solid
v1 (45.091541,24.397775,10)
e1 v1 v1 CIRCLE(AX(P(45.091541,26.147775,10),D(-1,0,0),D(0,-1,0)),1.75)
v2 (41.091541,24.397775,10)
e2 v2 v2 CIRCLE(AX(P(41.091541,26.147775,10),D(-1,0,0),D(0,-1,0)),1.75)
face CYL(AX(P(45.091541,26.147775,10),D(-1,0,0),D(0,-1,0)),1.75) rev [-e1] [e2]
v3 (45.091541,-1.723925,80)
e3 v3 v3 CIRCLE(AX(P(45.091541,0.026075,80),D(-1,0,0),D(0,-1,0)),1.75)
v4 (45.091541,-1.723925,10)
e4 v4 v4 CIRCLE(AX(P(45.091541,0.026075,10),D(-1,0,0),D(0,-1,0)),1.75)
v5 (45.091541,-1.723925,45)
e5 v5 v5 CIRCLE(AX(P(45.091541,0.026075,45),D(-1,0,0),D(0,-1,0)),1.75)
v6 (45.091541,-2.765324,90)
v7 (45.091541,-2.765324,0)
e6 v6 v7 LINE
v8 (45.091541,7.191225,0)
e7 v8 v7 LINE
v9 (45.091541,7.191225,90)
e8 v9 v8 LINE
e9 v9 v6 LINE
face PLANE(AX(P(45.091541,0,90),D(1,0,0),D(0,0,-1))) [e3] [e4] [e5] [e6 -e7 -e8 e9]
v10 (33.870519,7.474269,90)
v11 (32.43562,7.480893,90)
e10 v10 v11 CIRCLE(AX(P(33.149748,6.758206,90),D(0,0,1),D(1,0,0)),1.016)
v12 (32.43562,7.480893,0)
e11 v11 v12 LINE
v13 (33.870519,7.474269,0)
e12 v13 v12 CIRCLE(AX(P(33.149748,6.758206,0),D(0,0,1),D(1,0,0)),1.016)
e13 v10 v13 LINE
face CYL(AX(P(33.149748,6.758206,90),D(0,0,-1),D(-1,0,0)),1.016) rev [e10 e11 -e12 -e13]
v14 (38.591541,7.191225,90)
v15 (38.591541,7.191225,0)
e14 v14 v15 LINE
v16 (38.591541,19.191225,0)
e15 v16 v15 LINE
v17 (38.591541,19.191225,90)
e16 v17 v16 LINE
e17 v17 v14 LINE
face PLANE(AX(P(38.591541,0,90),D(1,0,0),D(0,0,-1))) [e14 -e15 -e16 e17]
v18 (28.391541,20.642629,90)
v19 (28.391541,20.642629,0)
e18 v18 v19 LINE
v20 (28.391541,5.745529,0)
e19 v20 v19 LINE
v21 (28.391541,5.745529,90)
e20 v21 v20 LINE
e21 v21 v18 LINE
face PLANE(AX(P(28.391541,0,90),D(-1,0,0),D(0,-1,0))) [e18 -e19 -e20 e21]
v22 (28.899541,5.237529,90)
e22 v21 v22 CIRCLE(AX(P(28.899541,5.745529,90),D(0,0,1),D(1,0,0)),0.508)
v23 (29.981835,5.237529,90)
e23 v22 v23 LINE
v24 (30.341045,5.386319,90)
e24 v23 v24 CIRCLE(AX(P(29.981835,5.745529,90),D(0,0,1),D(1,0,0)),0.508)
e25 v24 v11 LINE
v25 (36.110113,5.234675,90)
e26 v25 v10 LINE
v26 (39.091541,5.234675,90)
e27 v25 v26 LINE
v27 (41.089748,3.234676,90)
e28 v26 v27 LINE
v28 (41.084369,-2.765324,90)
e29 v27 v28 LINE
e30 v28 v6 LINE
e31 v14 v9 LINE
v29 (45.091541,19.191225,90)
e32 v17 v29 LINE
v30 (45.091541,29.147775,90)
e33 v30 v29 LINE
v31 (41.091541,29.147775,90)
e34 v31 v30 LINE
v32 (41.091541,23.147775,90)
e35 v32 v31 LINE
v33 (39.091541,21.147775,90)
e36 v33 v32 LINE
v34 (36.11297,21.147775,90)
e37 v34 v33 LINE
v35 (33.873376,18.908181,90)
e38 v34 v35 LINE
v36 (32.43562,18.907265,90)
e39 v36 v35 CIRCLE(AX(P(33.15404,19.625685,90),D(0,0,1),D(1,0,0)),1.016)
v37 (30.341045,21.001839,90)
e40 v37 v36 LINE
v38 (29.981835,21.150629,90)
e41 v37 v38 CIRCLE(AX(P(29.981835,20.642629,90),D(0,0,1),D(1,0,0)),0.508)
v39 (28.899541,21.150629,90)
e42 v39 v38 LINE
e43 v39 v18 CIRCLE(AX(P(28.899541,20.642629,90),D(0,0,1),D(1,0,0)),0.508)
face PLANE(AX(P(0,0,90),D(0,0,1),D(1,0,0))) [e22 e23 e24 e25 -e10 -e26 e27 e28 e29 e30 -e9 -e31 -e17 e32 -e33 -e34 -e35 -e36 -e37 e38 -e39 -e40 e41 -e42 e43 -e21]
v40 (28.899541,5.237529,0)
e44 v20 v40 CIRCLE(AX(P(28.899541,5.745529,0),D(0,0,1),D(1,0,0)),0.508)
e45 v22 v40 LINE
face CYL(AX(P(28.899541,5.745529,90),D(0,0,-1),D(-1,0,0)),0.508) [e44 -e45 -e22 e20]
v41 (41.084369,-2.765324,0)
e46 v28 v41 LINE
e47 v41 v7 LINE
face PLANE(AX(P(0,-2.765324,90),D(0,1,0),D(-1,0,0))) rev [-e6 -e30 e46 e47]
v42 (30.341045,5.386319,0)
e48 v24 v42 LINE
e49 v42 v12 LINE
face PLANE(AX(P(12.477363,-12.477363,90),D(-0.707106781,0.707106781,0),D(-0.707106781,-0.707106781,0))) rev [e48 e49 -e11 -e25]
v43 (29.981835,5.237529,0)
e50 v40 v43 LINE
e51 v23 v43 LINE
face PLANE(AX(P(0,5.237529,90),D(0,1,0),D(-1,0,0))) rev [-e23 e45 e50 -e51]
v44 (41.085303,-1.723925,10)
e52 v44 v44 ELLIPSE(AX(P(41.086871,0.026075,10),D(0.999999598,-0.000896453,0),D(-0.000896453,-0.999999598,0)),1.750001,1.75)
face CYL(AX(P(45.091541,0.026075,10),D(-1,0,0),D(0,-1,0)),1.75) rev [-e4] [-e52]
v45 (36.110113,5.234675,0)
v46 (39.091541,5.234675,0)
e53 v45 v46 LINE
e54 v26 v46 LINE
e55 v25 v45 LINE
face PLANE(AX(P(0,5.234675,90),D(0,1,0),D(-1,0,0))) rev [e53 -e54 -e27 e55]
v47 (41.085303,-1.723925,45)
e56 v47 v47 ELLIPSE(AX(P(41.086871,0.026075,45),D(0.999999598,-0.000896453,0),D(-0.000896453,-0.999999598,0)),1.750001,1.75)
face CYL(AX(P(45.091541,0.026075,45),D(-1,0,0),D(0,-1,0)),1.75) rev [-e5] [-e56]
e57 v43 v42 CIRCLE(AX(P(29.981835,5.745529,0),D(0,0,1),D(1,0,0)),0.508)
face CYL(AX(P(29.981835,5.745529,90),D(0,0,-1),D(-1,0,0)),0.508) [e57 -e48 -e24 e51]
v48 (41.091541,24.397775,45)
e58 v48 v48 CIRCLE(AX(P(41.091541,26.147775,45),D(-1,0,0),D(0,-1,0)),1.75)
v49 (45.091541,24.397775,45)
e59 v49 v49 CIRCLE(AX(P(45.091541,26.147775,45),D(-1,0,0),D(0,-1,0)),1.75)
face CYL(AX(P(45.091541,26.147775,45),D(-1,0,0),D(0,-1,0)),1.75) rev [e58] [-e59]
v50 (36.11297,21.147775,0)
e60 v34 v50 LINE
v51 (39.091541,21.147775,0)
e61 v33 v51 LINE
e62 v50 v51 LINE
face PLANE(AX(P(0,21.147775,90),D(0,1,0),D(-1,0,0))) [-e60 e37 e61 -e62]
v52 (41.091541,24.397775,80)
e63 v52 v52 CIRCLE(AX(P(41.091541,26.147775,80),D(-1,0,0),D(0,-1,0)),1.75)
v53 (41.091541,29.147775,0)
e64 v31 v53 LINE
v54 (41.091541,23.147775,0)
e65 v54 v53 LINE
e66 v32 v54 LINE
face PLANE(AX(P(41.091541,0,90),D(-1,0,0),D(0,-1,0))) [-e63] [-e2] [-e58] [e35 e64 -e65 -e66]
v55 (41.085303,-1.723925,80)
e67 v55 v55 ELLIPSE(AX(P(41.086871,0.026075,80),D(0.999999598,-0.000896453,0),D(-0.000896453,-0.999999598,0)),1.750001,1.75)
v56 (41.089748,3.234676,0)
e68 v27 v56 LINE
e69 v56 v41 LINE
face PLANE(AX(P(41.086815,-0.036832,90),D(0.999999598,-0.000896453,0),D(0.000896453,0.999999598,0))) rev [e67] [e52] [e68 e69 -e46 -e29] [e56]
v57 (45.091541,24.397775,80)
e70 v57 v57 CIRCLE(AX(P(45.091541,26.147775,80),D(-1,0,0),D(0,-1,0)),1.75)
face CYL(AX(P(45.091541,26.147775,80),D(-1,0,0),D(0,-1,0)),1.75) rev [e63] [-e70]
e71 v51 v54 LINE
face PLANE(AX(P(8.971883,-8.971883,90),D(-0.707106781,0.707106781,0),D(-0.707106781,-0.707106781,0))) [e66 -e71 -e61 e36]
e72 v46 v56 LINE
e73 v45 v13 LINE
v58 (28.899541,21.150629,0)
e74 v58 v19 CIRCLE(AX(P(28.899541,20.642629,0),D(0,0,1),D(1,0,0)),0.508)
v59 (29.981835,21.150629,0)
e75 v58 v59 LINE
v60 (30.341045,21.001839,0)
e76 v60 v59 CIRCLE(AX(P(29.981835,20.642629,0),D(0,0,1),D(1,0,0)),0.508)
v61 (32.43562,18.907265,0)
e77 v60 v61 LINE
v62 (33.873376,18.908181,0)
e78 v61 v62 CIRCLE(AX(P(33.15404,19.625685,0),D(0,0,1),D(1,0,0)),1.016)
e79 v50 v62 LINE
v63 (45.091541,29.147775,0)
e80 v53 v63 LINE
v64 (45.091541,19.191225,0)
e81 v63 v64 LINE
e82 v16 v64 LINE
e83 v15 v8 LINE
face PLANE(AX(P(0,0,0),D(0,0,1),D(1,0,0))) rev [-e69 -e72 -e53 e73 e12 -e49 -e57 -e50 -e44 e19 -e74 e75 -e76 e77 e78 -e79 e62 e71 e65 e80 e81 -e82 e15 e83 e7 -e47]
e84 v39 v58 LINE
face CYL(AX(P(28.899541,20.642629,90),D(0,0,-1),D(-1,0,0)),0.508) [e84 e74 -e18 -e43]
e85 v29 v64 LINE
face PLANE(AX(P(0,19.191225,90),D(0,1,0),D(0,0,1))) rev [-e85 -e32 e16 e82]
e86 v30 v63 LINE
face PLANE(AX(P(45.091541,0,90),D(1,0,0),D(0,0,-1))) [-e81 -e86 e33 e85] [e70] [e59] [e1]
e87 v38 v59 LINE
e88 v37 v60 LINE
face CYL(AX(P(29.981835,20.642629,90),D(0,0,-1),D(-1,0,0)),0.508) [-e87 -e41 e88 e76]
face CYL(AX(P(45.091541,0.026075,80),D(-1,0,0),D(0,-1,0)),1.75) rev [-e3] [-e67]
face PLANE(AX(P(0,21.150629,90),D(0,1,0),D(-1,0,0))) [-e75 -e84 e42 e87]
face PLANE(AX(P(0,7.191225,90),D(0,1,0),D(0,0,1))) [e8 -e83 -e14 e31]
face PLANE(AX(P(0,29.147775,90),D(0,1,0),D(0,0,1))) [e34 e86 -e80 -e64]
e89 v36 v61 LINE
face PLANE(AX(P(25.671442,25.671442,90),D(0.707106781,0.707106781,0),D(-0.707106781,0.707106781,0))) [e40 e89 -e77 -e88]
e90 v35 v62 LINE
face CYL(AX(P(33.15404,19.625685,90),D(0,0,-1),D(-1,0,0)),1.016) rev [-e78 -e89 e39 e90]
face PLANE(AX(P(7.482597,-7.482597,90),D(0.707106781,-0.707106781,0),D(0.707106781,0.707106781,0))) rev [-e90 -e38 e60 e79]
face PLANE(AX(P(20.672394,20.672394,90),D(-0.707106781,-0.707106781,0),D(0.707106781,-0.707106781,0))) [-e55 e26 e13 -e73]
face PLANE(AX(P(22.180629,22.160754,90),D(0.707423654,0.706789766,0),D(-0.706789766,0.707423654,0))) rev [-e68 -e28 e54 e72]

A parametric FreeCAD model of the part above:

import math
import FreeCAD as App
import Part
import Sketcher

V = App.Vector
Q = App.Units.Quantity

doc = App.newDocument("Part")
body = doc.addObject("PartDesign::Body", "Body")

sketch1 = doc.addObject("Sketcher::SketchObject", "Sketch")
body.addObject(sketch1)
sketch1.AttachmentSupport = (doc.XY_Plane, [""])
sketch1.MapMode = "FlatFace"
sketch1.addGeometry([
    Part.ArcOfCircle(Part.Circle(V(28.9, 5.75, 0), V(0, 0, 1), 0.51), math.radians(180), math.radians(270)),
    Part.LineSegment(V(28.9, 5.24, 0), V(29.98, 5.24, 0)),
    Part.ArcOfCircle(Part.Circle(V(29.98, 5.75, 0), V(0, 0, 1), 0.51), math.radians(-90), math.radians(-45)),
    Part.LineSegment(V(30.34, 5.39, 0), V(32.44, 7.48, 0)),
    Part.ArcOfCircle(Part.Circle(V(33.15, 6.76, 0), V(0, 0, 1), 1.02), math.radians(45), math.radians(135)),
    Part.LineSegment(V(33.87, 7.47, 0), V(36.11, 5.23, 0)),
    Part.LineSegment(V(36.11, 5.23, 0), V(39.09, 5.23, 0)),
    Part.LineSegment(V(39.09, 5.23, 0), V(41.09, 3.23, 0)),
    Part.LineSegment(V(41.09, 3.23, 0), V(41.08, -2.77, 0)),
    Part.LineSegment(V(41.08, -2.77, 0), V(45.09, -2.77, 0)),
    Part.LineSegment(V(45.09, -2.77, 0), V(45.09, 7.19, 0)),
    Part.LineSegment(V(45.09, 7.19, 0), V(38.59, 7.19, 0)),
    Part.LineSegment(V(38.59, 7.19, 0), V(38.59, 19.19, 0)),
    Part.LineSegment(V(38.59, 19.19, 0), V(45.09, 19.19, 0)),
    Part.LineSegment(V(45.09, 19.19, 0), V(45.09, 29.15, 0)),
    Part.LineSegment(V(45.09, 29.15, 0), V(41.09, 29.15, 0)),
    Part.LineSegment(V(41.09, 29.15, 0), V(41.09, 23.15, 0)),
    Part.LineSegment(V(41.09, 23.15, 0), V(39.09, 21.15, 0)),
    Part.LineSegment(V(39.09, 21.15, 0), V(36.11, 21.15, 0)),
    Part.LineSegment(V(36.11, 21.15, 0), V(33.87, 18.91, 0)),
    Part.ArcOfCircle(Part.Circle(V(33.15, 19.63, 0), V(0, 0, 1), 1.02), math.radians(-135), math.radians(-45)),
    Part.LineSegment(V(32.44, 18.91, 0), V(30.34, 21, 0)),
    Part.ArcOfCircle(Part.Circle(V(29.98, 20.64, 0), V(0, 0, 1), 0.51), math.radians(45), math.radians(90)),
    Part.LineSegment(V(29.98, 21.15, 0), V(28.9, 21.15, 0)),
    Part.ArcOfCircle(Part.Circle(V(28.9, 20.64, 0), V(0, 0, 1), 0.51), math.radians(90), math.radians(180)),
    Part.LineSegment(V(28.39, 20.64, 0), V(28.39, 5.75, 0)),
], False)
sketch1.addConstraint([
    Sketcher.Constraint("Tangent", 0, 2, 1, 1),
    Sketcher.Constraint("Tangent", 1, 2, 2, 1),
    Sketcher.Constraint("Tangent", 2, 2, 3, 1),
    Sketcher.Constraint("Coincident", 3, 2, 4, 2),
    Sketcher.Constraint("Coincident", 4, 1, 5, 1),
    Sketcher.Constraint("Coincident", 5, 2, 6, 1),
    Sketcher.Constraint("Coincident", 6, 2, 7, 1),
    Sketcher.Constraint("Coincident", 7, 2, 8, 1),
    Sketcher.Constraint("Coincident", 8, 2, 9, 1),
    Sketcher.Constraint("Coincident", 9, 2, 10, 1),
    Sketcher.Constraint("Coincident", 10, 2, 11, 1),
    Sketcher.Constraint("Coincident", 11, 2, 12, 1),
    Sketcher.Constraint("Coincident", 12, 2, 13, 1),
    Sketcher.Constraint("Coincident", 13, 2, 14, 1),
    Sketcher.Constraint("Coincident", 14, 2, 15, 1),
    Sketcher.Constraint("Coincident", 15, 2, 16, 1),
    Sketcher.Constraint("Coincident", 16, 2, 17, 1),
    Sketcher.Constraint("Coincident", 17, 2, 18, 1),
    Sketcher.Constraint("Coincident", 18, 2, 19, 1),
    Sketcher.Constraint("Coincident", 19, 2, 20, 2),
    Sketcher.Constraint("Tangent", 20, 1, 21, 1),
    Sketcher.Constraint("Tangent", 21, 2, 22, 1),
    Sketcher.Constraint("Tangent", 22, 2, 23, 1),
    Sketcher.Constraint("Tangent", 23, 2, 24, 1),
    Sketcher.Constraint("Tangent", 24, 2, 25, 1),
    Sketcher.Constraint("Tangent", 25, 2, 0, 1),
    Sketcher.Constraint("Horizontal", 1),
    Sketcher.Constraint("Horizontal", 6),
    Sketcher.Constraint("Horizontal", 9),
    Sketcher.Constraint("Vertical", 10),
    Sketcher.Constraint("Horizontal", 11),
    Sketcher.Constraint("Vertical", 12),
    Sketcher.Constraint("Horizontal", 13),
    Sketcher.Constraint("Vertical", 14),
    Sketcher.Constraint("Horizontal", 15),
    Sketcher.Constraint("Vertical", 16),
    Sketcher.Constraint("Horizontal", 18),
    Sketcher.Constraint("Horizontal", 23),
    Sketcher.Constraint("Vertical", 25),
    Sketcher.Constraint("Equal", 0, 2),
    Sketcher.Constraint("Equal", 4, 20),
    Sketcher.Constraint("Equal", 2, 22),
    Sketcher.Constraint("Equal", 22, 24),
    Sketcher.Constraint("Perpendicular", 3, 5),
    Sketcher.Constraint("Perpendicular", 5, 17),
    Sketcher.Constraint("Parallel", 17, 19),
    Sketcher.Constraint("Perpendicular", 19, 21),
    Sketcher.Constraint("Vertical", 2, 3, 22, 3),
    Sketcher.Constraint("Vertical", 10, 2, 13, 2),
    Sketcher.Constraint("Vertical", 6, 2, 17, 2),
    Sketcher.Constraint("Vertical", 3, 2, 20, 1),
    Sketcher.Constraint("Vertical", 2, 2, 21, 2),
    Sketcher.Constraint("Equal", 10, 14),
    Sketcher.Constraint("Equal", 5, 19),
    Sketcher.Constraint("DistanceX", 15, 2, 15, 1, Q("4 mm")),
    Sketcher.Constraint("DistanceY", 12, 1, 12, 2, Q("12 mm")),
    Sketcher.Constraint("DistanceY", 16, 2, 16, 1, Q("6 mm")),
    Sketcher.Constraint("DistanceX", 11, 2, 11, 1, Q("6.5 mm")),
    Sketcher.Constraint("Radius", 0, Q("0.508 mm")),
    Sketcher.Constraint("Radius", 4, Q("1.016 mm")),
    Sketcher.Constraint("DistanceY", 7, 2, 6, 2, Q("1.999999 mm")),
    Sketcher.Constraint("DistanceY", 8, 2, 7, 2, Q("6 mm")),
    Sketcher.Constraint("DistanceX", 6, 2, 9, 2, Q("6 mm")),
    Sketcher.Constraint("DistanceX", 4, 3, 7, 2, Q("7.94 mm")),
    Sketcher.Constraint("DistanceY", 25, 2, 25, 1, Q("14.8971 mm")),
    Sketcher.Constraint("DistanceX", 24, 3, 12, 2, Q("9.692 mm")),
    Sketcher.Constraint("DistanceX", 9, 1, 9, 2, Q("4.007172 mm")),
    Sketcher.Constraint("DistanceX", 18, 2, 18, 1, Q("2.978571 mm")),
    Sketcher.Constraint("DistanceY", 10, 1, 10, 2, Q("9.956549 mm")),
    Sketcher.Constraint("DistanceX", 0, 3, 20, 3, Q("4.254499 mm")),
    Sketcher.Constraint("DistanceX", 3, 2, 4, 1, Q("1.434899 mm")),
    Sketcher.Constraint("Distance", 7, Q("2.827159 mm")),
    Sketcher.Constraint("DistanceX", 1, 1, 1, 2, Q("1.082294 mm")),
    Sketcher.Constraint("DistanceX", -1, 1, 0, 3, Q("28.899541 mm")),
    Sketcher.Constraint("DistanceY", -1, 1, 0, 3, Q("5.745529 mm")),
])
pad1 = doc.addObject("PartDesign::Pad", "Pad")
body.addObject(pad1)
pad1.Profile = sketch1
pad1.Length = 90

sketch2 = doc.addObject("Sketcher::SketchObject", "Sketch001")
body.addObject(sketch2)
sketch2.AttachmentSupport = (doc.YZ_Plane, [""])
sketch2.MapMode = "FlatFace"
sketch2.AttachmentOffset = App.Placement(V(0, 0, 41.091541), App.Rotation())
sketch2.addGeometry([
    Part.Circle(V(0, 10, 0), V(0, 0, 1), 1.8),
    Part.Circle(V(0, 45, 0), V(0, 0, 1), 1.8),
    Part.Circle(V(0, 80, 0), V(0, 0, 1), 1.8),
    Part.Circle(V(26.1, 45, 0), V(0, 0, 1), 1.8),
    Part.Circle(V(26.1, 80, 0), V(0, 0, 1), 1.8),
    Part.Circle(V(26.1, 10, 0), V(0, 0, 1), 1.8),
], False)
sketch2.addConstraint([
    Sketcher.Constraint("Equal", 0, 1),
    Sketcher.Constraint("Equal", 1, 2),
    Sketcher.Constraint("Equal", 2, 3),
    Sketcher.Constraint("Equal", 3, 4),
    Sketcher.Constraint("Equal", 4, 5),
    Sketcher.Constraint("Horizontal", 1, 3, 3, 3),
    Sketcher.Constraint("Horizontal", 2, 3, 4, 3),
    Sketcher.Constraint("Horizontal", 0, 3, 5, 3),
    Sketcher.Constraint("Vertical", 0, 3, 1, 3),
    Sketcher.Constraint("Vertical", 1, 3, 2, 3),
    Sketcher.Constraint("Vertical", 3, 3, 4, 3),
    Sketcher.Constraint("Vertical", 4, 3, 5, 3),
    Sketcher.Constraint("Diameter", 0, Q("3.5 mm")),
    Sketcher.Constraint("DistanceY", -1, 1, 0, 3, Q("10 mm")),
    Sketcher.Constraint("DistanceY", -1, 1, 1, 3, Q("45 mm")),
    Sketcher.Constraint("DistanceY", -1, 1, 2, 3, Q("80 mm")),
    Sketcher.Constraint("DistanceX", 1, 3, 3, 3, Q("26.1217 mm")),
    Sketcher.Constraint("DistanceX", -1, 1, 0, 3, Q("0.026075 mm")),
])
pocket1 = doc.addObject("PartDesign::Pocket", "Pocket")
body.addObject(pocket1)
pocket1.Profile = sketch2
pocket1.Type = "ThroughAll"
pocket1.Midplane = True

doc.recompute()
